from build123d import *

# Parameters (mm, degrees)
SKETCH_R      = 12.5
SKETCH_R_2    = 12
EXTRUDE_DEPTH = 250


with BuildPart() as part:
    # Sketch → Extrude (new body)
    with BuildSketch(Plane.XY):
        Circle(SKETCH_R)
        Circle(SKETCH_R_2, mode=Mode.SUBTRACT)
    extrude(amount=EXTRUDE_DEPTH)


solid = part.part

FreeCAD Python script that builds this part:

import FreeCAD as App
import Part
import Sketcher
Q = App.Units.Quantity

doc = App.newDocument("Part")
body = doc.addObject("PartDesign::Body", "Body")

# Sketch on XY plane
sketch1 = doc.addObject("Sketcher::SketchObject", "Sketch")
body.addObject(sketch1)
sketch1.AttachmentSupport = (doc.XY_Plane, [""])
sketch1.MapMode = "FlatFace"
sketch1.addGeometry(Part.Circle(App.Vector(0, 0, 0), App.Vector(0, 0, 1), 12.5), False)
sketch1.addGeometry(Part.Circle(App.Vector(0, 0, 0), App.Vector(0, 0, 1), 12), False)
sketch1.addConstraint(Sketcher.Constraint("Coincident", 0, 3, -1, 1))
sketch1.addConstraint(Sketcher.Constraint("Coincident", 1, 3, -1, 1))
sketch1.addConstraint(Sketcher.Constraint("Diameter", 0, Q("25 mm")))
sketch1.addConstraint(Sketcher.Constraint("Diameter", 1, Q("24 mm")))
pad1 = doc.addObject("PartDesign::Pad", "Pad")
body.addObject(pad1)
pad1.Profile = sketch1
pad1.Length = 250

doc.recompute()
